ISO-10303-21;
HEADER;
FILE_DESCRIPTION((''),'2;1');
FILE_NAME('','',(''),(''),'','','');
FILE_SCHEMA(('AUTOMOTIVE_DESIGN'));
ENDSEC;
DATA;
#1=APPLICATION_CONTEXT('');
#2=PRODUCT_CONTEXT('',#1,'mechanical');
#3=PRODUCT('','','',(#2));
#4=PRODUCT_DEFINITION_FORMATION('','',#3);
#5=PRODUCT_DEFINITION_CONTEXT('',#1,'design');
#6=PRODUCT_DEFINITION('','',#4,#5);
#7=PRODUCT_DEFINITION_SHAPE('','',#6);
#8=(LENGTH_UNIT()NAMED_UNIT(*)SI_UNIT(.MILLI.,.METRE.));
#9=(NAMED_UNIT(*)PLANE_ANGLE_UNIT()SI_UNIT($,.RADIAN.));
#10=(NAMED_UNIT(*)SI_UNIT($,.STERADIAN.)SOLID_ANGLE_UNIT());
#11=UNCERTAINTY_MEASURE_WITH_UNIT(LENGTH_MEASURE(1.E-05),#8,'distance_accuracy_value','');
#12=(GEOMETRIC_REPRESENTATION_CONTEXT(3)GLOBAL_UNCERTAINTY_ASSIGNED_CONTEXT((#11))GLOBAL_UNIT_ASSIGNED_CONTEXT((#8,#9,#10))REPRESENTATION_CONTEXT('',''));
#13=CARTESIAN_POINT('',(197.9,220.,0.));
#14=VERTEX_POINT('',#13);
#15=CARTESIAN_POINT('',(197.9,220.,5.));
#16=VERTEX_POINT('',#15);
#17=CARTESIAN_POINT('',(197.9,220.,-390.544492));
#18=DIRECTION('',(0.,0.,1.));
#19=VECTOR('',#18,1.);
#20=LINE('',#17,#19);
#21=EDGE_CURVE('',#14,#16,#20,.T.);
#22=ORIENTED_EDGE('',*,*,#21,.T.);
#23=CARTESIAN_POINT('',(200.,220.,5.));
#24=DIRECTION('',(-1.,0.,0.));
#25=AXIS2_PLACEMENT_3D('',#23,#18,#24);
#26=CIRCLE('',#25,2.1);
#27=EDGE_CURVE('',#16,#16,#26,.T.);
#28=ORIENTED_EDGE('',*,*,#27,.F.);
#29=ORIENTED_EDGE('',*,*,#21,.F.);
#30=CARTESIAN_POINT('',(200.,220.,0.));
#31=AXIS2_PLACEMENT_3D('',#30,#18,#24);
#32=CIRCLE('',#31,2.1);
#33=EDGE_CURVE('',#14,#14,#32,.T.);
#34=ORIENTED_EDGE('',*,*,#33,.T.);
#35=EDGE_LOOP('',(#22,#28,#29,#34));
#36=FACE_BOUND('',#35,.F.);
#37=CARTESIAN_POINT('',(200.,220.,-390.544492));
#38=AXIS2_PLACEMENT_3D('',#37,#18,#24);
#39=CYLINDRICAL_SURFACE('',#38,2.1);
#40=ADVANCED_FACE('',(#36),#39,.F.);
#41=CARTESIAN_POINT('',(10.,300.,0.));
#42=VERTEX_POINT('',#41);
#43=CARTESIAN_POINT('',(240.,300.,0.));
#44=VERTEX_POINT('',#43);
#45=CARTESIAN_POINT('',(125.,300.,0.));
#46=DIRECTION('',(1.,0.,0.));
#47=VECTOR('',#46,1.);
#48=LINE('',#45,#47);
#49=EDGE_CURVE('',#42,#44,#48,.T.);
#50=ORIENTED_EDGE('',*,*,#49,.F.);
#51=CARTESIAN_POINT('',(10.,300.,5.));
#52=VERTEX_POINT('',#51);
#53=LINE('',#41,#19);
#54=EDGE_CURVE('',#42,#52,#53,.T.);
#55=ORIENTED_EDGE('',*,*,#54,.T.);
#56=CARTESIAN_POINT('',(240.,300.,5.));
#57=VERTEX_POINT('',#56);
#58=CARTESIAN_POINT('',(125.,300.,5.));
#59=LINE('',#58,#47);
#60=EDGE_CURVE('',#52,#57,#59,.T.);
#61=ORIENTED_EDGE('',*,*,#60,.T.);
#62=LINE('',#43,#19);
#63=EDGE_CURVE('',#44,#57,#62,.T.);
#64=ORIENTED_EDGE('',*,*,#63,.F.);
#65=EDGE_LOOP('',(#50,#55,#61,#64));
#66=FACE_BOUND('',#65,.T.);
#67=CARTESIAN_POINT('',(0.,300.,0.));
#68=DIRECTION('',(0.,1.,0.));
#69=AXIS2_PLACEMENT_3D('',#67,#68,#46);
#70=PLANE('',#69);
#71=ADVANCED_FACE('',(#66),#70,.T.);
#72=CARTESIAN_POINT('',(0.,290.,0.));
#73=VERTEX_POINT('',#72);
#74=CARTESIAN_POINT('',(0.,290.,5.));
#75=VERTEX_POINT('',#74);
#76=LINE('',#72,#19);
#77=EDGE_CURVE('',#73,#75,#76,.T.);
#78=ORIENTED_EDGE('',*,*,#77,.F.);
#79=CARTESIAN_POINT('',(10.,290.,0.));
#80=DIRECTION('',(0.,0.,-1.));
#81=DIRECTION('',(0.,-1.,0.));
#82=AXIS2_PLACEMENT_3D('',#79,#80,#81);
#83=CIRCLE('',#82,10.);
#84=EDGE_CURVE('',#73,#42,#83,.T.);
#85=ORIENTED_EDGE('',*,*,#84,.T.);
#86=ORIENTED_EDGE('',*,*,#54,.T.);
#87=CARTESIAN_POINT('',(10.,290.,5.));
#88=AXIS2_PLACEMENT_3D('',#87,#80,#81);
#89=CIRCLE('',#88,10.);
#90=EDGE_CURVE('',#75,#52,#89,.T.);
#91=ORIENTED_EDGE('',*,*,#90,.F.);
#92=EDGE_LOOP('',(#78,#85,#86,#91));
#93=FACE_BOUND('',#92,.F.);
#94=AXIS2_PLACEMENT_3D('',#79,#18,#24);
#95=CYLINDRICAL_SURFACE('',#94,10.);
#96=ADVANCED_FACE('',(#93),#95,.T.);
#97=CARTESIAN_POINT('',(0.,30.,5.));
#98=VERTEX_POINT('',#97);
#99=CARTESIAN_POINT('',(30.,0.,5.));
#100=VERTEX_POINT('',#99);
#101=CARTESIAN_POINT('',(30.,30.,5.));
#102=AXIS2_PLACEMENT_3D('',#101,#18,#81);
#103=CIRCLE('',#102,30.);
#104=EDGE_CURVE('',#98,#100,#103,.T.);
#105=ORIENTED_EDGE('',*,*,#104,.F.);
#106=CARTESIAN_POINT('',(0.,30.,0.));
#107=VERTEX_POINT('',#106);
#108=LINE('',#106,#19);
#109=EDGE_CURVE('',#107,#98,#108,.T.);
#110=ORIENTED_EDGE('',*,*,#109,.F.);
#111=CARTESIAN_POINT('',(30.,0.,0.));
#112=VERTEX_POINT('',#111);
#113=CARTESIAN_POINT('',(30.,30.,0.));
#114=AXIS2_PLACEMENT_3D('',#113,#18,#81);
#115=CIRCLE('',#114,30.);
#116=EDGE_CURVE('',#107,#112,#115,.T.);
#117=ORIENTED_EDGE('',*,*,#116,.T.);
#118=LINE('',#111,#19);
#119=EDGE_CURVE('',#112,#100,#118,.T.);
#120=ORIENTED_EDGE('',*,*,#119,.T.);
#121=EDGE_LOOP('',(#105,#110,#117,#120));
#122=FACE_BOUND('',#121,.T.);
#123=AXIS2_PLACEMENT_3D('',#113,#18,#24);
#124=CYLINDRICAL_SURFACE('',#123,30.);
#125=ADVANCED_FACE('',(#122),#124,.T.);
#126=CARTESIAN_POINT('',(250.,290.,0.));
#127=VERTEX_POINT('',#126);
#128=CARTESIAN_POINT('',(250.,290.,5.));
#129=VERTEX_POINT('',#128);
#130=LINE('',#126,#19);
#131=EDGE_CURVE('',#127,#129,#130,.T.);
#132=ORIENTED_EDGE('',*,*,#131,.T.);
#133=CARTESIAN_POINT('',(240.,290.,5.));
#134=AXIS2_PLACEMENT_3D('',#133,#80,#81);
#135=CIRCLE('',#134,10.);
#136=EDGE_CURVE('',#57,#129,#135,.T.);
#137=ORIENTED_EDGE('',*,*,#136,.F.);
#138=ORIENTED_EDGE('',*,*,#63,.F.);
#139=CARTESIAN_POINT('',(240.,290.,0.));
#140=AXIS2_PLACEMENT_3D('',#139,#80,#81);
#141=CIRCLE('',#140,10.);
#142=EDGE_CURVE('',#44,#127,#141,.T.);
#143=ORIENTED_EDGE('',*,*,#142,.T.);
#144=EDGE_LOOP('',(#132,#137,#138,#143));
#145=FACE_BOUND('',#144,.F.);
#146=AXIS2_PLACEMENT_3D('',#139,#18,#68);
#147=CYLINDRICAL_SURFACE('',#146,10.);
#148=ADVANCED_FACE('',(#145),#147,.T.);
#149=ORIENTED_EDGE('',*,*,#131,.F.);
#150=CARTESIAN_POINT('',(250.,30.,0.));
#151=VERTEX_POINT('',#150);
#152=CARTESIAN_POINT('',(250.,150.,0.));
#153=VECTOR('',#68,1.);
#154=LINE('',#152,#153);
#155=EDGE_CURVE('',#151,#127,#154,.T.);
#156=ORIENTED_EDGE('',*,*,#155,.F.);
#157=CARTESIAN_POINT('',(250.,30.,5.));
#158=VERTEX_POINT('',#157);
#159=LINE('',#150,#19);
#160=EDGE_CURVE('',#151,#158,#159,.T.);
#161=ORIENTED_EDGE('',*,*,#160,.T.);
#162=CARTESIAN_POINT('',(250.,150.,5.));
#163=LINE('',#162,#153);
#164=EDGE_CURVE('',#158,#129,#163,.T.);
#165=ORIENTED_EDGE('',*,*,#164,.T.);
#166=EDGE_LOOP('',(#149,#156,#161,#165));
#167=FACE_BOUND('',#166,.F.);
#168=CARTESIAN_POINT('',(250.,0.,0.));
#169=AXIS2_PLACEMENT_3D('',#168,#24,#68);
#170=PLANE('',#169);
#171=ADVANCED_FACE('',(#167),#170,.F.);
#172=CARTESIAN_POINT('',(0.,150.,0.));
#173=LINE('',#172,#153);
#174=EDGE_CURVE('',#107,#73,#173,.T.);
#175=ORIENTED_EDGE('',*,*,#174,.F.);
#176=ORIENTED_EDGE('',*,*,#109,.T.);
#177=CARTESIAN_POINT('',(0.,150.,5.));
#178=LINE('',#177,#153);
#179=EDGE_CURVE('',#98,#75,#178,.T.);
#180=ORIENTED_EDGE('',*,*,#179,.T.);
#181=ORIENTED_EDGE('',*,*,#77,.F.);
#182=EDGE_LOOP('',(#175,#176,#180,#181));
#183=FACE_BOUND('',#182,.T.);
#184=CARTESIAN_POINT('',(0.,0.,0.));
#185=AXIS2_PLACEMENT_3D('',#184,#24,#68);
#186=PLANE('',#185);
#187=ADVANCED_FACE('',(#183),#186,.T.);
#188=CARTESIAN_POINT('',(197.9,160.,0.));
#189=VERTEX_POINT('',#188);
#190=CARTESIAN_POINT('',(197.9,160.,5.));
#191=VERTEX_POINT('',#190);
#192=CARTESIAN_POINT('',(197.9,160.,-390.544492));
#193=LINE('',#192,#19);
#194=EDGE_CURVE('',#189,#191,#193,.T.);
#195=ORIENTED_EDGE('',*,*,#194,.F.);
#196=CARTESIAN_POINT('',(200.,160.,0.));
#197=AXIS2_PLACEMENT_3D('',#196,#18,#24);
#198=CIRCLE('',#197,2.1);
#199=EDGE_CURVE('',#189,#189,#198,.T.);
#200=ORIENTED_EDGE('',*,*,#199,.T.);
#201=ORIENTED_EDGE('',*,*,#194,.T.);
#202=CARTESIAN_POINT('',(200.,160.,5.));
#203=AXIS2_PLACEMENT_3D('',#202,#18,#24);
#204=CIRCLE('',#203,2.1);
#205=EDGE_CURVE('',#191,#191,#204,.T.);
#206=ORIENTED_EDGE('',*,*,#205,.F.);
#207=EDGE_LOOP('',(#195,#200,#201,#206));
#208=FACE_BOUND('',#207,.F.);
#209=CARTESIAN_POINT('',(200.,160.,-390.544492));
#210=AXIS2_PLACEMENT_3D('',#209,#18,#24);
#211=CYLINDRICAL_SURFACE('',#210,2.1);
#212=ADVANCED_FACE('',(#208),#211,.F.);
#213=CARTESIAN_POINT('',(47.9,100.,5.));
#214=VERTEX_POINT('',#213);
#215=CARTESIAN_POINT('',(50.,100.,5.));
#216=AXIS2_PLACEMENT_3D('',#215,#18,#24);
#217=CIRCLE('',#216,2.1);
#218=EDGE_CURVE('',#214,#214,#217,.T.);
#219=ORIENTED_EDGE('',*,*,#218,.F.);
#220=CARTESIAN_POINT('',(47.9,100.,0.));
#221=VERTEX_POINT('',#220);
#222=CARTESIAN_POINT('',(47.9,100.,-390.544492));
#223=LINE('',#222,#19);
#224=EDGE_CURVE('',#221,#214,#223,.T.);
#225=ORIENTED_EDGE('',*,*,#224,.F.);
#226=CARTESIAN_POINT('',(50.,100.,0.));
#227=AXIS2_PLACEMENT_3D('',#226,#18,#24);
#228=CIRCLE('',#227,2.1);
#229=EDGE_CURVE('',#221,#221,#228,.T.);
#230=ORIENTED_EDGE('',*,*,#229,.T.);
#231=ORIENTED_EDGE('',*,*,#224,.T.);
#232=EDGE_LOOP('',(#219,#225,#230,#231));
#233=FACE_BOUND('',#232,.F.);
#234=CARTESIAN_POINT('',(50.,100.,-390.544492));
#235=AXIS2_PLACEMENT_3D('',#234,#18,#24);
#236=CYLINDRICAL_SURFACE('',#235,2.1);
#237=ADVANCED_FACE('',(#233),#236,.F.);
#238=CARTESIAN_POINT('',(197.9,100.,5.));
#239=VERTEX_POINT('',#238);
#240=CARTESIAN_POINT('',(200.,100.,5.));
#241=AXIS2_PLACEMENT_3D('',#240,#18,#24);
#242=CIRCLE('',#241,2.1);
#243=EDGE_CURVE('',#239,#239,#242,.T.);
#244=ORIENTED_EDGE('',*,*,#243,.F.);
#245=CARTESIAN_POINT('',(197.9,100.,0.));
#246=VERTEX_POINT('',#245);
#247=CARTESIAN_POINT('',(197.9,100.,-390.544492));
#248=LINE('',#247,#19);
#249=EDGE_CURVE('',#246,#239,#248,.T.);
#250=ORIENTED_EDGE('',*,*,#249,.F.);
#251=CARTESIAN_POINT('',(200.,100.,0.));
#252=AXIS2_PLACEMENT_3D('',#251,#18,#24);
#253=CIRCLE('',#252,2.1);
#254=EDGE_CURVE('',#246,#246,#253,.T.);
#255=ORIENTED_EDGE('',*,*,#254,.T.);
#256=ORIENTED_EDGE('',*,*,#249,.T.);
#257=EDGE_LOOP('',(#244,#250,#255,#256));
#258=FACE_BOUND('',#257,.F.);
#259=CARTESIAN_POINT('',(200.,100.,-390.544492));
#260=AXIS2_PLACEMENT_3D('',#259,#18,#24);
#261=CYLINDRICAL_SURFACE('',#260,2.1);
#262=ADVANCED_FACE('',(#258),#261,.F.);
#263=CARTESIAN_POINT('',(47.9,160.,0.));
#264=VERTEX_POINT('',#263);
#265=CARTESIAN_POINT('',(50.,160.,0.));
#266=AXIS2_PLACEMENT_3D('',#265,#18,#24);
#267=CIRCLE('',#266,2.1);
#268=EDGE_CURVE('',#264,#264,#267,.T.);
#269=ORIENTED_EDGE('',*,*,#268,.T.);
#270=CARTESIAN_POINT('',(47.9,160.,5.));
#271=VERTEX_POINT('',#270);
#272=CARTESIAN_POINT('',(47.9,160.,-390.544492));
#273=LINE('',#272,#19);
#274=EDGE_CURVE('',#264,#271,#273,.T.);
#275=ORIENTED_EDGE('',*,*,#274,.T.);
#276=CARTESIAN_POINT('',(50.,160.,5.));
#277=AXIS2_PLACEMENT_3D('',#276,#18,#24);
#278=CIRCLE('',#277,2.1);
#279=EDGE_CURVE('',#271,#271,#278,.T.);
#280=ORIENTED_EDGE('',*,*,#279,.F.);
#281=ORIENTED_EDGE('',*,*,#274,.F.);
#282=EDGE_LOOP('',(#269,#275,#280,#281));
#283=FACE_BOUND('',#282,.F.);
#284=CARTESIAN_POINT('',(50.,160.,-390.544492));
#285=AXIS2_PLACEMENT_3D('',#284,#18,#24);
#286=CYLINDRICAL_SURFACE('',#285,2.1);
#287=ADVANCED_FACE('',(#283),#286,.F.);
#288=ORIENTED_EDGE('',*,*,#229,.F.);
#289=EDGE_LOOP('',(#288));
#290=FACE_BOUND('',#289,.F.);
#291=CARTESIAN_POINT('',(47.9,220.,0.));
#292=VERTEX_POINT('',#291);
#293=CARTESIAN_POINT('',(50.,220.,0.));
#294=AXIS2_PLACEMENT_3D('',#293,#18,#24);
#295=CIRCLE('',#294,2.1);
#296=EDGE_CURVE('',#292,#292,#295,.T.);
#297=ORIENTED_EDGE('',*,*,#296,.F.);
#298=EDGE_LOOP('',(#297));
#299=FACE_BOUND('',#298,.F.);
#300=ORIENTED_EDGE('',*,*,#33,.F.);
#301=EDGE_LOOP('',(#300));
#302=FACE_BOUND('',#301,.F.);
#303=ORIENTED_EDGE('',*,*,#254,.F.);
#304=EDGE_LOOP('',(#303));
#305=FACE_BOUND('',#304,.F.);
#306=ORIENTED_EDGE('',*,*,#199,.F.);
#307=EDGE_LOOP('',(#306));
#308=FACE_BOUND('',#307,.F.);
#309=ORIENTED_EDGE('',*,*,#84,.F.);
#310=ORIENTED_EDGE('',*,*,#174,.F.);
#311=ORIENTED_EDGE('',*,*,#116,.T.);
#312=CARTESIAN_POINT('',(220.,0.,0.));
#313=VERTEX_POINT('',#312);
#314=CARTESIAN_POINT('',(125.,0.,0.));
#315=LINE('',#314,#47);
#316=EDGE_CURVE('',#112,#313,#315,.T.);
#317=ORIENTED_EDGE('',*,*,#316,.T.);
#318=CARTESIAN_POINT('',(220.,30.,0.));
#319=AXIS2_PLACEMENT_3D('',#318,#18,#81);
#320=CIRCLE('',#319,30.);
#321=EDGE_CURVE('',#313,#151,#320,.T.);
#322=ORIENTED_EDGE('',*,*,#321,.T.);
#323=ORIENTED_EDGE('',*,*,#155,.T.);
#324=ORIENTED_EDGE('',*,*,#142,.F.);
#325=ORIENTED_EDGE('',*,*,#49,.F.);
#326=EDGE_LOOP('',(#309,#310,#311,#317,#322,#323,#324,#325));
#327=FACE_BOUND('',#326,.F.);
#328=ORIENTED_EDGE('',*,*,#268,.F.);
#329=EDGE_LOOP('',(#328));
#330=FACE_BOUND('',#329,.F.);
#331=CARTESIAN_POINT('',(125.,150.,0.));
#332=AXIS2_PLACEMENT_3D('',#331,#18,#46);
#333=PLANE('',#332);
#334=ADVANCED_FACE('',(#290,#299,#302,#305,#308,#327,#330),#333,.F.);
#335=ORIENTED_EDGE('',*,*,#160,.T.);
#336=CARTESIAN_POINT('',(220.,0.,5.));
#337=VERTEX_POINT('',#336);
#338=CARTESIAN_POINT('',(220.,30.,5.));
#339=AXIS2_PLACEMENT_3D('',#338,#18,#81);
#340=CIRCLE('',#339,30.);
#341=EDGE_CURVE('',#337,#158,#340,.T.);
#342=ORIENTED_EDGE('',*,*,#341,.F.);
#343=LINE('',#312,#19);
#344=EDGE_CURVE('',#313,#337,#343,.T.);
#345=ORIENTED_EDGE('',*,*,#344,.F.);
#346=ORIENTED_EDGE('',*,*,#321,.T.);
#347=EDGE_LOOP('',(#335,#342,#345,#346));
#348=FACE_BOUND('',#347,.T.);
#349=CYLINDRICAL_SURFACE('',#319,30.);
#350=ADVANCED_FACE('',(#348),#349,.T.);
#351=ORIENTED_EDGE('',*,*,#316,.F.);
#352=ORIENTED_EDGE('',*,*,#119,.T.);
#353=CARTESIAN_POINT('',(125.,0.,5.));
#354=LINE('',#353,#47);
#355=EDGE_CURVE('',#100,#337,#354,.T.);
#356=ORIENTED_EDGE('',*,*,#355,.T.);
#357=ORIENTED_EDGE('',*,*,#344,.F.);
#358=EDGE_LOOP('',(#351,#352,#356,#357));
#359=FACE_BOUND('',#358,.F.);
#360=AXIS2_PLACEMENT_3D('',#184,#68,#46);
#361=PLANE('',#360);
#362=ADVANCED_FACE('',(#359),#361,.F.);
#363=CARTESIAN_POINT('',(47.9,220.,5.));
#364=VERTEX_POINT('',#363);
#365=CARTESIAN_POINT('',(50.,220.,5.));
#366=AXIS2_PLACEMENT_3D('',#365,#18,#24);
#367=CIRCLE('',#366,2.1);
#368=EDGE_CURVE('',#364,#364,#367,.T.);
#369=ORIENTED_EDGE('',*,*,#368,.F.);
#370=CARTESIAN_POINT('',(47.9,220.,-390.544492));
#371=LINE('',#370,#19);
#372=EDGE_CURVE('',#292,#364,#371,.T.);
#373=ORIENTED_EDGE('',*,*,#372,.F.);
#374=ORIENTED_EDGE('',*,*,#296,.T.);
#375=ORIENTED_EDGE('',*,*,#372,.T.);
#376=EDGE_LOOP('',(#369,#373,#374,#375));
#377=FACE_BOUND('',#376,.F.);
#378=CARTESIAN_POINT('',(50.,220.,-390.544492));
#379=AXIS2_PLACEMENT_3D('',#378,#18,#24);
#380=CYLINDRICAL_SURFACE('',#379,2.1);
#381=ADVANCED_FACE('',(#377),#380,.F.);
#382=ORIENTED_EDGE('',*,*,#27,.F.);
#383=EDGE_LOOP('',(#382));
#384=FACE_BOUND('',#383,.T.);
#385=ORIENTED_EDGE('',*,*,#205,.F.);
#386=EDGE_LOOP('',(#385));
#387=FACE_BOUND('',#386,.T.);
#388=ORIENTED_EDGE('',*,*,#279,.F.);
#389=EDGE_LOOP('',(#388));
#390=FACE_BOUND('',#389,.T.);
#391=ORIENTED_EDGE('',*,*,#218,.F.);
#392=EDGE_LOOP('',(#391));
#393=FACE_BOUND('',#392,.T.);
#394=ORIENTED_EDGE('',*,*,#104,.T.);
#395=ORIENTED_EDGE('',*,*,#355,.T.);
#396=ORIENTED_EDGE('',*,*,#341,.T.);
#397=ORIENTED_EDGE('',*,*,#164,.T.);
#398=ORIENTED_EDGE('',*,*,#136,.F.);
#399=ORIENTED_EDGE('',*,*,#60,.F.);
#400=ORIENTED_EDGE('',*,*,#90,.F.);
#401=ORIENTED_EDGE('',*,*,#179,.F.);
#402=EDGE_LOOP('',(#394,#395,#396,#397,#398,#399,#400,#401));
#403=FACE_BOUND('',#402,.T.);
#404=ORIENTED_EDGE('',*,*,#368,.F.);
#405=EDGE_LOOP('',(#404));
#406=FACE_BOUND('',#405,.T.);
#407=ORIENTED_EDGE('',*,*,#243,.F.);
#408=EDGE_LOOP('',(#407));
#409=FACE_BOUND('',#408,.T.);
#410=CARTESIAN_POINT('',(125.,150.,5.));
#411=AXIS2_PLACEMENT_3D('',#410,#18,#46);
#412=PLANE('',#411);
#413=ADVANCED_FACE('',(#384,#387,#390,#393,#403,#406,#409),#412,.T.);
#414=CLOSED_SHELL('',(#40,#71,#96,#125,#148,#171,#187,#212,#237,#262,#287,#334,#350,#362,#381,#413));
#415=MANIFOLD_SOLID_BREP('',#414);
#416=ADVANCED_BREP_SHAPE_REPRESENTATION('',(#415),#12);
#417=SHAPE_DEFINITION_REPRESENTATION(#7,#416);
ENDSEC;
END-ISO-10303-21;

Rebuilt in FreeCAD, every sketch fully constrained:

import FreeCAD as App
import Part
import Sketcher
from FreeCAD import Vector


def edges_at(feature, points):
    """Names of the edges that pass closest to the given points."""
    edges = feature.Shape.Edges
    near = lambda p: min(range(len(edges)), key=lambda i: edges[i].distToShape(Part.Vertex(*p))[0])
    return sorted({f"Edge{near(p) + 1}" for p in points})

doc = App.newDocument("Part")
body = doc.addObject("PartDesign::Body", "Body")

sketch1 = body.newObject("Sketcher::SketchObject", "Sketch")
sketch1.AttachmentSupport = (doc.getObject("XY_Plane"), [""])
sketch1.MapMode = "FlatFace"
sketch1.addGeometry([
    Part.LineSegment(Vector(0, 300, 0), Vector(0, 0, 0)),
    Part.LineSegment(Vector(0, 0, 0), Vector(250, 0, 0)),
    Part.LineSegment(Vector(250, 0, 0), Vector(250, 300, 0)),
    Part.LineSegment(Vector(250, 300, 0), Vector(0, 300, 0)),
], False)
sketch1.addConstraint([
    Sketcher.Constraint("Coincident", 0, 2, 1, 1),
    Sketcher.Constraint("Coincident", 1, 2, 2, 1),
    Sketcher.Constraint("Coincident", 2, 2, 3, 1),
    Sketcher.Constraint("Coincident", 3, 2, 0, 1),
    Sketcher.Constraint("Vertical", 0),
    Sketcher.Constraint("Horizontal", 1),
    Sketcher.Constraint("Vertical", 2),
    Sketcher.Constraint("Horizontal", 3),
    Sketcher.Constraint("Coincident", 0, 2, -1, 1),
    Sketcher.Constraint("DistanceX", 1, 1, 1, 2, 250.0),
    Sketcher.Constraint("DistanceY", 0, 2, 0, 1, 300.0),
])
pad1 = body.newObject("PartDesign::Pad", "Pad")
pad1.Profile = sketch1
pad1.Length = 5

sketch2 = body.newObject("Sketcher::SketchObject", "Sketch001")
sketch2.AttachmentSupport = (doc.getObject("XY_Plane"), [""])
sketch2.MapMode = "FlatFace"
sketch2.addGeometry([
    Part.Circle(Vector(50, 220, 0), Vector(0, 0, 1), 2.1),
    Part.Circle(Vector(50, 160, 0), Vector(0, 0, 1), 2.1),
    Part.Circle(Vector(200, 220, 0), Vector(0, 0, 1), 2.1),
    Part.Circle(Vector(200, 160, 0), Vector(0, 0, 1), 2.1),
    Part.Circle(Vector(200, 100, 0), Vector(0, 0, 1), 2.1),
    Part.Circle(Vector(50, 100, 0), Vector(0, 0, 1), 2.1),
], False)
sketch2.addConstraint([
    Sketcher.Constraint("Equal", 0, 1),
    Sketcher.Constraint("Equal", 1, 2),
    Sketcher.Constraint("Equal", 2, 3),
    Sketcher.Constraint("Equal", 3, 4),
    Sketcher.Constraint("Equal", 4, 5),
    Sketcher.Constraint("Horizontal", 0, 3, 2, 3),
    Sketcher.Constraint("Horizontal", 1, 3, 3, 3),
    Sketcher.Constraint("Horizontal", 4, 3, 5, 3),
    Sketcher.Constraint("Vertical", 0, 3, 1, 3),
    Sketcher.Constraint("Vertical", 2, 3, 3, 3),
    Sketcher.Constraint("Vertical", 3, 3, 4, 3),
    Sketcher.Constraint("Vertical", 1, 3, 5, 3),
    Sketcher.Constraint("Diameter", 0, 4.2),
    Sketcher.Constraint("DistanceX", -1, 1, 0, 3, 50.0),
    Sketcher.Constraint("DistanceY", -1, 1, 0, 3, 220.0),
    Sketcher.Constraint("DistanceY", -1, 1, 1, 3, 160.0),
    Sketcher.Constraint("DistanceX", -1, 1, 2, 3, 200.0),
    Sketcher.Constraint("DistanceY", -1, 1, 4, 3, 100.0),
])
doc.recompute()
hole = body.newObject("PartDesign::Hole", "Hole")
hole.Profile = sketch2
hole.ThreadType = "None"
hole.Diameter = 4.2
hole.DepthType = "ThroughAll"
hole.Reversed = True
doc.recompute()

fillet = body.newObject("PartDesign::Fillet", "Fillet")
fillet.Base = (hole, edges_at(hole, [(0, 300, 2.5), (250, 300, 2.5)]))
fillet.Radius = 10
doc.recompute()

fillet2 = body.newObject("PartDesign::Fillet", "Fillet001")
fillet2.Base = (fillet, edges_at(fillet, [(0, 0, 2.5), (250, 0, 2.5)]))
fillet2.Radius = 30

doc.recompute()
